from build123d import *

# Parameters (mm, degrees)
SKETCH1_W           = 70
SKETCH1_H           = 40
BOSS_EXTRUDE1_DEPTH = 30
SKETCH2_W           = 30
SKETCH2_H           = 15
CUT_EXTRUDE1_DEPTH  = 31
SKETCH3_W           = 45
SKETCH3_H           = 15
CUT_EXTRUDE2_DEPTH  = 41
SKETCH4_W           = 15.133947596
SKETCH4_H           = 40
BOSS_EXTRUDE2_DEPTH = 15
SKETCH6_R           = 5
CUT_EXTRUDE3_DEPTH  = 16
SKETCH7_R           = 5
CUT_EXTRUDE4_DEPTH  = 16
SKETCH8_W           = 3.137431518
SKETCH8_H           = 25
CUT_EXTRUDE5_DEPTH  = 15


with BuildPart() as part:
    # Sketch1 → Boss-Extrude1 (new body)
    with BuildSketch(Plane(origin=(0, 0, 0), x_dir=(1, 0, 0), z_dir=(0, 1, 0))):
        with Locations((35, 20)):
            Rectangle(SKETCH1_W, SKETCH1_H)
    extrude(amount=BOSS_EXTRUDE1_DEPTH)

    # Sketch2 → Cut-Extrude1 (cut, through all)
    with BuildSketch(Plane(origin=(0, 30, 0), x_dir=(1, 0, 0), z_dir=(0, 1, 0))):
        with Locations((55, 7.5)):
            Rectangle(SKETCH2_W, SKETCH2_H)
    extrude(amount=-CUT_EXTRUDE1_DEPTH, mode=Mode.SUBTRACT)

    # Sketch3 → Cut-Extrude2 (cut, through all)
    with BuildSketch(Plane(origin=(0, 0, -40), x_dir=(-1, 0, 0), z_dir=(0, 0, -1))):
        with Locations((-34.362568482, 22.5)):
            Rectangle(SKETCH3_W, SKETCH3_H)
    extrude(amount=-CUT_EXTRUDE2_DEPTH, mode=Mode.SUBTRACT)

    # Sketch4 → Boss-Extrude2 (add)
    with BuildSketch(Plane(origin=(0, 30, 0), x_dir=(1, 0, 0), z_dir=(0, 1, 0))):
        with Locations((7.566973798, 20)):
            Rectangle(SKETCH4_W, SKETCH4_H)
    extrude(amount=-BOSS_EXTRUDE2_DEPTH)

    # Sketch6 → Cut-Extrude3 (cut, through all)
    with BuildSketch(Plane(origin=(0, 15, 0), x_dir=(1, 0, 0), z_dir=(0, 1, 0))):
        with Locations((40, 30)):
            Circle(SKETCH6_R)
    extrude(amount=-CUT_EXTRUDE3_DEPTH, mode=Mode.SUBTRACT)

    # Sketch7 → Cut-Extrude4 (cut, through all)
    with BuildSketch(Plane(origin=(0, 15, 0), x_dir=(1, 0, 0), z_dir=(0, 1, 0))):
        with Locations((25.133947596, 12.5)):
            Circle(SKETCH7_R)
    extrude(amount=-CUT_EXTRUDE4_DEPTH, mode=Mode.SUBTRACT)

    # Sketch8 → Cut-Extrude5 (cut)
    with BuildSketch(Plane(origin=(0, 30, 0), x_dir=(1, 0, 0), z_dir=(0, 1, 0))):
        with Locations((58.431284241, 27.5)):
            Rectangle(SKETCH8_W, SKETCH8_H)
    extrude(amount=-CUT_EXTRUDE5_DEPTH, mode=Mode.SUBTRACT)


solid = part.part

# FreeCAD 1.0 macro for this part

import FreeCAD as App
import Part
import Sketcher
Q = App.Units.Quantity


def add_polygon(sketch, points):
    """Adds a closed chain of lines whose ends are joined by coincident constraints."""
    first, n = sketch.GeometryCount, len(points)
    for a, b in zip(points, points[1:] + points[:1]):
        sketch.addGeometry(Part.LineSegment(App.Vector(*a, 0), App.Vector(*b, 0)), False)
    for i in range(n):
        sketch.addConstraint(Sketcher.Constraint("Coincident", first + i, 2, first + (i + 1) % n, 1))

doc = App.newDocument("Part")
body = doc.addObject("PartDesign::Body", "Body")

sketch1 = doc.addObject("Sketcher::SketchObject", "Sketch")
body.addObject(sketch1)
sketch1.AttachmentSupport = (doc.XZ_Plane, [""])
sketch1.MapMode = "FlatFace"
add_polygon(sketch1, [(0, -40), (0, 0), (70, 0), (70, -40)])
sketch1.addConstraint([
    Sketcher.Constraint("Vertical", 0),
    Sketcher.Constraint("Horizontal", 1),
    Sketcher.Constraint("Vertical", 2),
    Sketcher.Constraint("Horizontal", 3),
    Sketcher.Constraint("Coincident", 0, 2, -1, 1),
    Sketcher.Constraint("DistanceX", 1, 1, 1, 2, Q("70 mm")),
    Sketcher.Constraint("DistanceY", 0, 1, 0, 2, Q("40 mm")),
])
pad1 = doc.addObject("PartDesign::Pad", "Pad")
body.addObject(pad1)
pad1.Profile = sketch1
pad1.Length = 30
pad1.Reversed = True

sketch2 = doc.addObject("Sketcher::SketchObject", "Sketch001")
body.addObject(sketch2)
sketch2.AttachmentSupport = (doc.XZ_Plane, [""])
sketch2.MapMode = "FlatFace"
sketch2.AttachmentOffset = App.Placement(App.Vector(0, 0, -30), App.Rotation())
add_polygon(sketch2, [(40, -15), (40, 0), (70, 0), (70, -15)])
sketch2.addConstraint([
    Sketcher.Constraint("Vertical", 0),
    Sketcher.Constraint("Horizontal", 1),
    Sketcher.Constraint("Vertical", 2),
    Sketcher.Constraint("Horizontal", 3),
    Sketcher.Constraint("PointOnObject", 0, 2, -1),
    Sketcher.Constraint("DistanceX", 1, 1, 1, 2, Q("30 mm")),
    Sketcher.Constraint("DistanceY", 0, 1, 0, 2, Q("15 mm")),
    Sketcher.Constraint("DistanceX", -1, 1, 0, 2, Q("40 mm")),
])
pocket1 = doc.addObject("PartDesign::Pocket", "Pocket")
body.addObject(pocket1)
pocket1.Profile = sketch2
pocket1.Type = "ThroughAll"
pocket1.Reversed = True

sketch3 = doc.addObject("Sketcher::SketchObject", "Sketch002")
body.addObject(sketch3)
sketch3.AttachmentSupport = (doc.XY_Plane, [""])
sketch3.MapMode = "FlatFace"
sketch3.AttachmentOffset = App.Placement(App.Vector(0, 0, -40), App.Rotation())
add_polygon(sketch3, [(57, 30), (57, 15), (12, 15), (12, 30)])
sketch3.addConstraint([
    Sketcher.Constraint("Vertical", 0),
    Sketcher.Constraint("Horizontal", 1),
    Sketcher.Constraint("Vertical", 2),
    Sketcher.Constraint("Horizontal", 3),
    Sketcher.Constraint("DistanceX", 1, 2, 1, 1, Q("45 mm")),
    Sketcher.Constraint("DistanceY", 0, 2, 0, 1, Q("15 mm")),
    Sketcher.Constraint("DistanceY", -1, 1, 0, 2, Q("15 mm")),
    Sketcher.Constraint("DistanceX", -1, 1, 0, 2, Q("56.862568 mm")),
])
pocket2 = doc.addObject("PartDesign::Pocket", "Pocket001")
body.addObject(pocket2)
pocket2.Profile = sketch3
pocket2.Type = "ThroughAll"
pocket2.Reversed = True

sketch4 = doc.addObject("Sketcher::SketchObject", "Sketch003")
body.addObject(sketch4)
sketch4.AttachmentSupport = (doc.XZ_Plane, [""])
sketch4.MapMode = "FlatFace"
sketch4.AttachmentOffset = App.Placement(App.Vector(0, 0, -30), App.Rotation())
add_polygon(sketch4, [(0, -40), (0, 0), (15, 0), (15, -40)])
sketch4.addConstraint([
    Sketcher.Constraint("Vertical", 0),
    Sketcher.Constraint("Horizontal", 1),
    Sketcher.Constraint("Vertical", 2),
    Sketcher.Constraint("Horizontal", 3),
    Sketcher.Constraint("Coincident", 0, 2, -1, 1),
    Sketcher.Constraint("DistanceY", 0, 1, 0, 2, Q("40 mm")),
    Sketcher.Constraint("DistanceX", 1, 1, 1, 2, Q("15.133948 mm")),
])
pad2 = doc.addObject("PartDesign::Pad", "Pad001")
body.addObject(pad2)
pad2.Profile = sketch4
pad2.Length = 15

sketch5 = doc.addObject("Sketcher::SketchObject", "Sketch004")
body.addObject(sketch5)
sketch5.AttachmentSupport = (doc.XZ_Plane, [""])
sketch5.MapMode = "FlatFace"
sketch5.AttachmentOffset = App.Placement(App.Vector(0, 0, -15), App.Rotation())
sketch5.addGeometry(Part.Circle(App.Vector(40, -30, 0), App.Vector(0, 0, 1), 5), False)
sketch5.addConstraint([
    Sketcher.Constraint("Diameter", 0, Q("10 mm")),
    Sketcher.Constraint("DistanceX", -1, 1, 0, 3, Q("40 mm")),
    Sketcher.Constraint("DistanceY", 0, 3, -1, 1, Q("30 mm")),
])
pocket3 = doc.addObject("PartDesign::Pocket", "Pocket002")
body.addObject(pocket3)
pocket3.Profile = sketch5
pocket3.Type = "ThroughAll"
pocket3.Reversed = True

sketch6 = doc.addObject("Sketcher::SketchObject", "Sketch005")
body.addObject(sketch6)
sketch6.AttachmentSupport = (doc.XZ_Plane, [""])
sketch6.MapMode = "FlatFace"
sketch6.AttachmentOffset = App.Placement(App.Vector(0, 0, -15), App.Rotation())
sketch6.addGeometry(Part.Circle(App.Vector(25, -12, 0), App.Vector(0, 0, 1), 5), False)
sketch6.addConstraint([
    Sketcher.Constraint("Diameter", 0, Q("10 mm")),
    Sketcher.Constraint("DistanceY", 0, 3, -1, 1, Q("12.5 mm")),
    Sketcher.Constraint("DistanceX", -1, 1, 0, 3, Q("25.133948 mm")),
])
pocket4 = doc.addObject("PartDesign::Pocket", "Pocket003")
body.addObject(pocket4)
pocket4.Profile = sketch6
pocket4.Type = "ThroughAll"
pocket4.Reversed = True

sketch7 = doc.addObject("Sketcher::SketchObject", "Sketch006")
body.addObject(sketch7)
sketch7.AttachmentSupport = (doc.XZ_Plane, [""])
sketch7.MapMode = "FlatFace"
sketch7.AttachmentOffset = App.Placement(App.Vector(0, 0, -30), App.Rotation())
add_polygon(sketch7, [(56.9, -40), (56.9, -15), (60, -15), (60, -40)])
sketch7.addConstraint([
    Sketcher.Constraint("Vertical", 0),
    Sketcher.Constraint("Horizontal", 1),
    Sketcher.Constraint("Vertical", 2),
    Sketcher.Constraint("Horizontal", 3),
    Sketcher.Constraint("DistanceY", 0, 1, 0, 2, Q("25 mm")),
    Sketcher.Constraint("DistanceY", 0, 2, -1, 1, Q("15 mm")),
    Sketcher.Constraint("DistanceX", -1, 1, 1, 2, Q("60 mm")),
    Sketcher.Constraint("DistanceX", 1, 1, 1, 2, Q("3.137432 mm")),
])
pocket5 = doc.addObject("PartDesign::Pocket", "Pocket004")
body.addObject(pocket5)
pocket5.Profile = sketch7
pocket5.Length = 15
pocket5.Reversed = True

doc.recompute()
